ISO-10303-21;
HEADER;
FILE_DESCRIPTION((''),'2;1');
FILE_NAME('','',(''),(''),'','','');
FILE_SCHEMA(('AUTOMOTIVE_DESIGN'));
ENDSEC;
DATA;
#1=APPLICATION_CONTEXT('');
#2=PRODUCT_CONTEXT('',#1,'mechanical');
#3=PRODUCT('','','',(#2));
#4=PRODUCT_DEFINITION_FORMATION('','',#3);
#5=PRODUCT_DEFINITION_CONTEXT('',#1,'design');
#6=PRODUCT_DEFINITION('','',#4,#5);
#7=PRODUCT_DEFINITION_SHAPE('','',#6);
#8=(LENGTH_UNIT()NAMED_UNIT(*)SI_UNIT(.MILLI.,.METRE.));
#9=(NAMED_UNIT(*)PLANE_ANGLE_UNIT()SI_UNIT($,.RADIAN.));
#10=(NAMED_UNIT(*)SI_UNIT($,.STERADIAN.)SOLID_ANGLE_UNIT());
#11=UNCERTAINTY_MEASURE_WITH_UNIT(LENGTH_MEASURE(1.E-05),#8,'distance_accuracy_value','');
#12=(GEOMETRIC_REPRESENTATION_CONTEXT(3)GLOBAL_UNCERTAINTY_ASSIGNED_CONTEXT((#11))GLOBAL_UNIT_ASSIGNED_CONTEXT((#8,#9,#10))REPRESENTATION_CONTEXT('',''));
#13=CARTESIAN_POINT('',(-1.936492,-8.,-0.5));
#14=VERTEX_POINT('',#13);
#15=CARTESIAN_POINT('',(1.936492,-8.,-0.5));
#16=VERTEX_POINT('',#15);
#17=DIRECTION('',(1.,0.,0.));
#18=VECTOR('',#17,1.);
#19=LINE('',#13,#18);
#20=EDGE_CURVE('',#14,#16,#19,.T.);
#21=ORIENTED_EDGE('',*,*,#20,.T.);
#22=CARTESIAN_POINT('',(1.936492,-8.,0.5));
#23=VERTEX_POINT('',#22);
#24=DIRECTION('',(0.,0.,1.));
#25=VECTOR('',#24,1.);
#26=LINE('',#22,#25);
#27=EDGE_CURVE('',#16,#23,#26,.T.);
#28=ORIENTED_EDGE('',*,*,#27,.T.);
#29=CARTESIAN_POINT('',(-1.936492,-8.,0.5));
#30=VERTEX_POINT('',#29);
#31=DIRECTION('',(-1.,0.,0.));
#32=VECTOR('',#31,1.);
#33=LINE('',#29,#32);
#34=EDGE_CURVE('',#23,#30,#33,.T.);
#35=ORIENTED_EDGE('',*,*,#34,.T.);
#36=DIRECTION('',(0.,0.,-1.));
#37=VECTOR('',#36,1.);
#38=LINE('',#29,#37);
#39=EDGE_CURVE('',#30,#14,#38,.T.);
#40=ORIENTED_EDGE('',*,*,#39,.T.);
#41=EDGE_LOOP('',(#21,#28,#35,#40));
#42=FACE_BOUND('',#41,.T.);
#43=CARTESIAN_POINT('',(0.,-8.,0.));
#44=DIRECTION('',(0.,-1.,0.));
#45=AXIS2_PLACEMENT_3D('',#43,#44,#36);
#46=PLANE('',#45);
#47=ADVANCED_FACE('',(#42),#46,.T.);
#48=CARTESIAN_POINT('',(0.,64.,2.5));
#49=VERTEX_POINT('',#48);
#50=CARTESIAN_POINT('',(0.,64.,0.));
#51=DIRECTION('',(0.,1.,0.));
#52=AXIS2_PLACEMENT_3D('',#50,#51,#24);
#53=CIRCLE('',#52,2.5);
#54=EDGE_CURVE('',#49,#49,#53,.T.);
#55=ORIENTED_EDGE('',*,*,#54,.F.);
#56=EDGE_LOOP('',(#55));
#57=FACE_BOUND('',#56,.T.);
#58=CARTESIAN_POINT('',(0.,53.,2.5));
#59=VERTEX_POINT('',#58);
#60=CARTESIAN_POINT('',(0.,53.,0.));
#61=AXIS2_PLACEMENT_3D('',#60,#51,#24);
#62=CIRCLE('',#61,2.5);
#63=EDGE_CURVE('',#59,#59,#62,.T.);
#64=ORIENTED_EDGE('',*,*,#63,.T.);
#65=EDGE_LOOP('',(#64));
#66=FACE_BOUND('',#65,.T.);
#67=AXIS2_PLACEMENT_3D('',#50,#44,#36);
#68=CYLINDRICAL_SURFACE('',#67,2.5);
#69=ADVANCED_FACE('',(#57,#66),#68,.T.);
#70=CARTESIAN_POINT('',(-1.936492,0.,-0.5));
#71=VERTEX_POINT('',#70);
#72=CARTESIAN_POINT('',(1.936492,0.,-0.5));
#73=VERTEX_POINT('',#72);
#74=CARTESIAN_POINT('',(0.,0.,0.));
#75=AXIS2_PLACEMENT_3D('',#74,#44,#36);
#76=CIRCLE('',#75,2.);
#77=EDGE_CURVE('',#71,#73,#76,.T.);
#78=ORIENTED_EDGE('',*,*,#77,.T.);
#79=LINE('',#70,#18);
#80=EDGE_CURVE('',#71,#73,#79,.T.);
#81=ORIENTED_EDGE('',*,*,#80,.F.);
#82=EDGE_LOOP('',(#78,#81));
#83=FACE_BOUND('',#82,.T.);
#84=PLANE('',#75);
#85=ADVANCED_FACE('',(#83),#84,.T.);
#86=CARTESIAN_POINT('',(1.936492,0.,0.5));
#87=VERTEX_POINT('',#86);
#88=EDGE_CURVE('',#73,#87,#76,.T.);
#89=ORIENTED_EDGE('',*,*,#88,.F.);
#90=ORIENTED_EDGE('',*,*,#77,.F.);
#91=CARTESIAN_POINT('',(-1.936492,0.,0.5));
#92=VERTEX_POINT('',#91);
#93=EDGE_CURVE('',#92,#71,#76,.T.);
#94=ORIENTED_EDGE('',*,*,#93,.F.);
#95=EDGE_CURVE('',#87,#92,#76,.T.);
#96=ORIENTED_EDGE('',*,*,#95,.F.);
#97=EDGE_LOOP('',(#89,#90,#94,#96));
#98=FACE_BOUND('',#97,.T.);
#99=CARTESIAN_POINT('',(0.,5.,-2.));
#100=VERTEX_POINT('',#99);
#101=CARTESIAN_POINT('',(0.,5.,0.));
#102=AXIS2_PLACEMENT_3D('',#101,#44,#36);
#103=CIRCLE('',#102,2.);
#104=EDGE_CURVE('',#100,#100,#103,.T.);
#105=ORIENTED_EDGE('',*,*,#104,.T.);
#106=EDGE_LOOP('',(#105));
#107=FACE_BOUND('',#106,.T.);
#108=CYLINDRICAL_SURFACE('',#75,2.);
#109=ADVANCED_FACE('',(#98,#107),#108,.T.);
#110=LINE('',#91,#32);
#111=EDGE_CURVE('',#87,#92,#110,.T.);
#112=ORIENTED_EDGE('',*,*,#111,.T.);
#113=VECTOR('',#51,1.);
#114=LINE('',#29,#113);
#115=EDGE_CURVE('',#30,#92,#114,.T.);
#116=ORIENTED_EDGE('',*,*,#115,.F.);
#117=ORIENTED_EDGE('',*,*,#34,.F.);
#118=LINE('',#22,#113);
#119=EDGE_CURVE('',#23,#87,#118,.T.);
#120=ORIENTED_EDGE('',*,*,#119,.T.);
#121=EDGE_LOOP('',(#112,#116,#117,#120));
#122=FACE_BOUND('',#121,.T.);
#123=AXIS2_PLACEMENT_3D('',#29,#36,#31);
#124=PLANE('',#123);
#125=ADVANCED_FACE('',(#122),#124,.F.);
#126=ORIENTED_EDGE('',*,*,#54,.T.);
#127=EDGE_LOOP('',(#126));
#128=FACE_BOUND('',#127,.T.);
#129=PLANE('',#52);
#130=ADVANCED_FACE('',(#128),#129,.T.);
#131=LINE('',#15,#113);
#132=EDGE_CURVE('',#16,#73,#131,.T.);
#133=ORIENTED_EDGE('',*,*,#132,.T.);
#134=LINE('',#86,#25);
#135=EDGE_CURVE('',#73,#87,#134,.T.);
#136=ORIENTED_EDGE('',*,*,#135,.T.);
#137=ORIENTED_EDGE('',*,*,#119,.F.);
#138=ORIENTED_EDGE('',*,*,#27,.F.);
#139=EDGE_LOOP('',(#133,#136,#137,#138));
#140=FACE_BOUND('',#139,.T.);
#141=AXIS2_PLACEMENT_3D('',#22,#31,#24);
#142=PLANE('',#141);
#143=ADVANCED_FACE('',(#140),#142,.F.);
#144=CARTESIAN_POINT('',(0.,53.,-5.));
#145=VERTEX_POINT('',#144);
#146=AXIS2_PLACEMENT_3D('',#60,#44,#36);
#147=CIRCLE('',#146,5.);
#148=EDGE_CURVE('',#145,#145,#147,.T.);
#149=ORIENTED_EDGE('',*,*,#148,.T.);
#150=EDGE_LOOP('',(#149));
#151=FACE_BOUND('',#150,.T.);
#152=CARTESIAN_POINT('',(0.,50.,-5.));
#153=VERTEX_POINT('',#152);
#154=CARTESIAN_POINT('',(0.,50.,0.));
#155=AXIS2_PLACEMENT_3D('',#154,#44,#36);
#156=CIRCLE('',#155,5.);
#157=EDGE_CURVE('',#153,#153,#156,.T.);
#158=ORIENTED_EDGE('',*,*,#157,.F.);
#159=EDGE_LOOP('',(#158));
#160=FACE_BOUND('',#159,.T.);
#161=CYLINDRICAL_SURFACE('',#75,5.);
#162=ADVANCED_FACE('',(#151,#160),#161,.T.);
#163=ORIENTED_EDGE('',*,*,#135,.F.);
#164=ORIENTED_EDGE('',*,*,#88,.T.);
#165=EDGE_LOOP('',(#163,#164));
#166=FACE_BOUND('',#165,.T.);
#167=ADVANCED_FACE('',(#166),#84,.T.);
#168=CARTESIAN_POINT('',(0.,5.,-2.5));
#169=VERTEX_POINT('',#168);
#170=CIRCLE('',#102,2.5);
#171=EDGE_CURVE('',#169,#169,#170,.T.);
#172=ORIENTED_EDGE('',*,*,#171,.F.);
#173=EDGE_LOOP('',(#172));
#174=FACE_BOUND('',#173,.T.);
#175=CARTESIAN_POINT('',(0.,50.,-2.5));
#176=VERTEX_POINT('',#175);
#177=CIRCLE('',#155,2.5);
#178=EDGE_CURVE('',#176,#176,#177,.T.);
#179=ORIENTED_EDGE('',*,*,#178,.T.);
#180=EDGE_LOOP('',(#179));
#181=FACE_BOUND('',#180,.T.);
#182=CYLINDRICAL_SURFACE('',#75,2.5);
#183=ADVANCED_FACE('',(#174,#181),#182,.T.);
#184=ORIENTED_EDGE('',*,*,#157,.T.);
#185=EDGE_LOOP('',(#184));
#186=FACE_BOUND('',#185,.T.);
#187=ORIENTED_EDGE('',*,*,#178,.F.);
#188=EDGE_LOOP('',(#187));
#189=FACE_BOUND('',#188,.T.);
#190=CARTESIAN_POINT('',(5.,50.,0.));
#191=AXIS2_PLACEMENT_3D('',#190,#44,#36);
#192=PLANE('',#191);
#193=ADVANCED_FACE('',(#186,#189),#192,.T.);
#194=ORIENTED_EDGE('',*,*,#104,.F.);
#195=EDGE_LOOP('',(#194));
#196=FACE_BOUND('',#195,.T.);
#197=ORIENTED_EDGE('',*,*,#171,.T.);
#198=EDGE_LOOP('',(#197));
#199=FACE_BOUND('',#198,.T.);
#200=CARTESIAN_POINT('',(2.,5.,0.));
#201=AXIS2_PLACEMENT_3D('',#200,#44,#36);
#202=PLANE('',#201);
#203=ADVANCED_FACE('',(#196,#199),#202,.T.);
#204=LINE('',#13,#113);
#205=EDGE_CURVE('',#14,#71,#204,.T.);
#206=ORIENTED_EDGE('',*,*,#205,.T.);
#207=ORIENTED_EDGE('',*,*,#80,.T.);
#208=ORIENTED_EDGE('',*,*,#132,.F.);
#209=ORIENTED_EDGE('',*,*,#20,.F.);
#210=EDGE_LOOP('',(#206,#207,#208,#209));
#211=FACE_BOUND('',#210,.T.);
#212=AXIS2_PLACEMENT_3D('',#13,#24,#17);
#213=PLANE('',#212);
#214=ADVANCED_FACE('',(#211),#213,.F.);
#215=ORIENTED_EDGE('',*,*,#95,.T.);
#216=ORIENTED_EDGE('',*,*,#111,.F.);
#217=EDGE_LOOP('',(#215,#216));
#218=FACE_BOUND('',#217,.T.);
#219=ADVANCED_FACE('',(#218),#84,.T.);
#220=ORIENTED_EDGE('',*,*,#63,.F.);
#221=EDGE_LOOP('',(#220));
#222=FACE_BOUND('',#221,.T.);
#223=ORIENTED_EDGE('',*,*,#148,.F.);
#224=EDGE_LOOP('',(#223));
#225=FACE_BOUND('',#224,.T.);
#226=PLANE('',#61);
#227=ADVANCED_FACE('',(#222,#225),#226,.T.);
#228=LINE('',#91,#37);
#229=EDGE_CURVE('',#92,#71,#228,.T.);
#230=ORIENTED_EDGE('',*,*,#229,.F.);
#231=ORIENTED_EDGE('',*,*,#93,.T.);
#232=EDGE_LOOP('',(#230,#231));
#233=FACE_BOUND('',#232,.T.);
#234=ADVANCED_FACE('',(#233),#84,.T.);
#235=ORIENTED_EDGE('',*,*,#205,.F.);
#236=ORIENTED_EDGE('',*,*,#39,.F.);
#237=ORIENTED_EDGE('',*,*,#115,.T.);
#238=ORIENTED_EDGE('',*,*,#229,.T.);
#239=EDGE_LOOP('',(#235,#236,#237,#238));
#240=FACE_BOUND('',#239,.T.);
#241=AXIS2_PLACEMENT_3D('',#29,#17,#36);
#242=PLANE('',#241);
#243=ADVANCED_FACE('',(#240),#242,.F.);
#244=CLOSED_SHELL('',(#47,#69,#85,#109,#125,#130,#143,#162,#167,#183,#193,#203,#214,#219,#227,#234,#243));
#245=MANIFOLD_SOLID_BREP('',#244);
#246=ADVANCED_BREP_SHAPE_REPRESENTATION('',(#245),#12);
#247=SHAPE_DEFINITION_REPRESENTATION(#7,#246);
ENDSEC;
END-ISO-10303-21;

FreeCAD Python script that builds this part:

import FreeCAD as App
import Part
import Sketcher

V = App.Vector

doc = App.newDocument("Part")
body = doc.addObject("PartDesign::Body", "Body")

sketch1 = doc.addObject("Sketcher::SketchObject", "Sketch")
body.addObject(sketch1)
sketch1.AttachmentSupport = (doc.XY_Plane, [""])
sketch1.MapMode = "FlatFace"
sketch1.addGeometry([
    Part.LineSegment(V(0, 53, 0), V(0, 0, 0)),
    Part.LineSegment(V(0, 0, 0), V(2, 0, 0)),
    Part.LineSegment(V(2, 0, 0), V(2, 5, 0)),
    Part.LineSegment(V(2, 5, 0), V(2.5, 5, 0)),
    Part.LineSegment(V(2.5, 5, 0), V(2.5, 50, 0)),
    Part.LineSegment(V(2.5, 50, 0), V(5, 50, 0)),
    Part.LineSegment(V(5, 50, 0), V(5, 53, 0)),
    Part.LineSegment(V(5, 53, 0), V(0, 53, 0)),
], False)
sketch1.addConstraint([
    Sketcher.Constraint("Coincident", 0, 2, 1, 1),
    Sketcher.Constraint("Coincident", 1, 2, 2, 1),
    Sketcher.Constraint("Coincident", 2, 2, 3, 1),
    Sketcher.Constraint("Coincident", 3, 2, 4, 1),
    Sketcher.Constraint("Coincident", 4, 2, 5, 1),
    Sketcher.Constraint("Coincident", 5, 2, 6, 1),
    Sketcher.Constraint("Coincident", 6, 2, 7, 1),
    Sketcher.Constraint("Coincident", 7, 2, 0, 1),
    Sketcher.Constraint("Vertical", 0),
    Sketcher.Constraint("Horizontal", 1),
    Sketcher.Constraint("Vertical", 2),
    Sketcher.Constraint("Horizontal", 3),
    Sketcher.Constraint("Vertical", 4),
    Sketcher.Constraint("Horizontal", 5),
    Sketcher.Constraint("Vertical", 6),
    Sketcher.Constraint("Horizontal", 7),
    Sketcher.Constraint("Coincident", 0, 2, -1, 1),
    Sketcher.Constraint("Equal", 7, 2),
    Sketcher.Constraint("DistanceX", 1, 1, 1, 2, 2.0),
    Sketcher.Constraint("DistanceX", 7, 2, 7, 1, 5.0),
    Sketcher.Constraint("DistanceY", 0, 2, 0, 1, 53.0),
    Sketcher.Constraint("DistanceY", 4, 1, 4, 2, 45.0),
    Sketcher.Constraint("DistanceX", 3, 1, 3, 2, 0.5),
])
revolution = doc.addObject("PartDesign::Revolution", "Revolution")
body.addObject(revolution)
revolution.Profile = sketch1
revolution.ReferenceAxis = (sketch1, ["V_Axis"])
revolution.Angle = 360

sketch2 = doc.addObject("Sketcher::SketchObject", "Sketch001")
body.addObject(sketch2)
sketch2.AttachmentSupport = (doc.XZ_Plane, [""])
sketch2.MapMode = "FlatFace"
sketch2.addGeometry([
    Part.LineSegment(V(-1.936492, 0.5, 0), V(-1.936492, -0.5, 0)),
    Part.LineSegment(V(-1.936492, -0.5, 0), V(1.936492, -0.5, 0)),
    Part.LineSegment(V(1.936492, -0.5, 0), V(1.936492, 0.5, 0)),
    Part.LineSegment(V(1.936492, 0.5, 0), V(-1.936492, 0.5, 0)),
], False)
sketch2.addConstraint([
    Sketcher.Constraint("Coincident", 0, 2, 1, 1),
    Sketcher.Constraint("Coincident", 1, 2, 2, 1),
    Sketcher.Constraint("Coincident", 2, 2, 3, 1),
    Sketcher.Constraint("Coincident", 3, 2, 0, 1),
    Sketcher.Constraint("Vertical", 0),
    Sketcher.Constraint("Horizontal", 1),
    Sketcher.Constraint("Vertical", 2),
    Sketcher.Constraint("Horizontal", 3),
    Sketcher.Constraint("Symmetric", 0, 2, 2, 2, -1, 1),
    Sketcher.Constraint("DistanceY", 0, 2, 0, 1, 1.0),
    Sketcher.Constraint("DistanceX", 1, 1, 1, 2, 3.872983),
])
pad1 = doc.addObject("PartDesign::Pad", "Pad")
body.addObject(pad1)
pad1.Profile = sketch2
pad1.Length = 8

sketch3 = doc.addObject("Sketcher::SketchObject", "Sketch002")
body.addObject(sketch3)
sketch3.AttachmentSupport = (doc.XZ_Plane, [""])
sketch3.MapMode = "FlatFace"
sketch3.AttachmentOffset = App.Placement(V(0, 0, -53), App.Rotation())
sketch3.addGeometry(Part.Circle(V(0, 0, 0), V(0, 0, 1), 2.5), False)
sketch3.addConstraint([
    Sketcher.Constraint("Coincident", 0, 3, -1, 1),
    Sketcher.Constraint("Diameter", 0, 5.0),
])
pad2 = doc.addObject("PartDesign::Pad", "Pad001")
body.addObject(pad2)
pad2.Profile = sketch3
pad2.Length = 11
pad2.Reversed = True

doc.recompute()
